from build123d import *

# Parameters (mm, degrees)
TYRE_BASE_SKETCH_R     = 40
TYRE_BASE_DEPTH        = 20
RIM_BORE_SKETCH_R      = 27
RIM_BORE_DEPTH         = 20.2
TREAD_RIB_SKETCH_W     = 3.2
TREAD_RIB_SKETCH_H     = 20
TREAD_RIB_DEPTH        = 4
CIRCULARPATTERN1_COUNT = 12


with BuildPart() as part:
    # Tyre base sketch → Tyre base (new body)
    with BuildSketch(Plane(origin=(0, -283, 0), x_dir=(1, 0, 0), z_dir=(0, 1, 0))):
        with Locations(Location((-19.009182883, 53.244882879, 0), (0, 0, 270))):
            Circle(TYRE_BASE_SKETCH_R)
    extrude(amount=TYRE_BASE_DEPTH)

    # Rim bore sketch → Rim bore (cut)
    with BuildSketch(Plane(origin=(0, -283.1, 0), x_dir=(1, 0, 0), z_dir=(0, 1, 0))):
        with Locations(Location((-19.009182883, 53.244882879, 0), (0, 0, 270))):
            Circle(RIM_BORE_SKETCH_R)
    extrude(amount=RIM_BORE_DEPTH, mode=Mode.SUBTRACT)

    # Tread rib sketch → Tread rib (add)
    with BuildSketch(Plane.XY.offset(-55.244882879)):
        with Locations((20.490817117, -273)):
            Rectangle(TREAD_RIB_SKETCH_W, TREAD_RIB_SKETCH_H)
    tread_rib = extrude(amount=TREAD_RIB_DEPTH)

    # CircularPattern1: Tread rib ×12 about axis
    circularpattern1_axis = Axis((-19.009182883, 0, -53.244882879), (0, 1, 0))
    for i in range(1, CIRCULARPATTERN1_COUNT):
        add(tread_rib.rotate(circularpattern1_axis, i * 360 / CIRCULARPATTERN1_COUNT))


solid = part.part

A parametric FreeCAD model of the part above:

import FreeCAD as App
import Part
import Sketcher
Q = App.Units.Quantity

doc = App.newDocument("Part")
body = doc.addObject("PartDesign::Body", "Body")

# Sketch on XZ plane
sketch1 = body.newObject("Sketcher::SketchObject", "Sketch")
sketch1.AttachmentSupport = (doc.getObject("XZ_Plane"), [""])
sketch1.MapMode = "FlatFace"
sketch1.AttachmentOffset = App.Placement(App.Vector(0, 0, 283), App.Rotation())
sketch1.addGeometry(Part.Circle(App.Vector(-19.009183, -53.244883, 0), App.Vector(0, 0, 1), 40), False)
sketch1.addConstraint(Sketcher.Constraint("Diameter", 0, Q("80 mm")))
sketch1.addConstraint(Sketcher.Constraint("DistanceX", 0, 3, -1, 1, Q("19.009183 mm")))
sketch1.addConstraint(Sketcher.Constraint("DistanceY", 0, 3, -1, 1, Q("53.244883 mm")))
pad1 = body.newObject("PartDesign::Pad", "Pad")
pad1.Profile = sketch1
pad1.Length = 20
pad1.Reversed = True

# Sketch on XZ plane
sketch2 = body.newObject("Sketcher::SketchObject", "Sketch001")
sketch2.AttachmentSupport = (doc.getObject("XZ_Plane"), [""])
sketch2.MapMode = "FlatFace"
sketch2.AttachmentOffset = App.Placement(App.Vector(0, 0, 283.1), App.Rotation())
sketch2.addGeometry(Part.Circle(App.Vector(-19.009183, -53.244883, 0), App.Vector(0, 0, 1), 27), False)
sketch2.addConstraint(Sketcher.Constraint("Diameter", 0, Q("54 mm")))
sketch2.addConstraint(Sketcher.Constraint("DistanceX", 0, 3, -1, 1, Q("19.009183 mm")))
sketch2.addConstraint(Sketcher.Constraint("DistanceY", 0, 3, -1, 1, Q("53.244883 mm")))
pocket1 = body.newObject("PartDesign::Pocket", "Pocket")
pocket1.Profile = sketch2
pocket1.Length = 20.2

# Sketch on XY plane
sketch3 = body.newObject("Sketcher::SketchObject", "Sketch002")
sketch3.AttachmentSupport = (doc.getObject("XY_Plane"), [""])
sketch3.MapMode = "FlatFace"
sketch3.AttachmentOffset = App.Placement(App.Vector(0, 0, -55.244883), App.Rotation())
sketch3.addGeometry(Part.LineSegment(App.Vector(18.890817, -263, 0), App.Vector(18.890817, -283, 0)), False)
sketch3.addGeometry(Part.LineSegment(App.Vector(18.890817, -283, 0), App.Vector(22.090817, -283, 0)), False)
sketch3.addGeometry(Part.LineSegment(App.Vector(22.090817, -283, 0), App.Vector(22.090817, -263, 0)), False)
sketch3.addGeometry(Part.LineSegment(App.Vector(22.090817, -263, 0), App.Vector(18.890817, -263, 0)), False)
sketch3.addConstraint(Sketcher.Constraint("Coincident", 0, 2, 1, 1))
sketch3.addConstraint(Sketcher.Constraint("Coincident", 1, 2, 2, 1))
sketch3.addConstraint(Sketcher.Constraint("Coincident", 2, 2, 3, 1))
sketch3.addConstraint(Sketcher.Constraint("Coincident", 3, 2, 0, 1))
sketch3.addConstraint(Sketcher.Constraint("Vertical", 0))
sketch3.addConstraint(Sketcher.Constraint("Horizontal", 1))
sketch3.addConstraint(Sketcher.Constraint("Vertical", 2))
sketch3.addConstraint(Sketcher.Constraint("Horizontal", 3))
sketch3.addConstraint(Sketcher.Constraint("DistanceY", 0, 2, 0, 1, Q("20 mm")))
sketch3.addConstraint(Sketcher.Constraint("DistanceX", 1, 1, 1, 2, Q("3.2 mm")))
sketch3.addConstraint(Sketcher.Constraint("DistanceY", 0, 2, -1, 1, Q("283 mm")))
sketch3.addConstraint(Sketcher.Constraint("DistanceX", -1, 1, 0, 2, Q("18.890817 mm")))
pad2 = body.newObject("PartDesign::Pad", "Pad001")
pad2.Profile = sketch3
pad2.Length = 4
doc.recompute()

datumline = body.newObject("PartDesign::Line", "DatumLine")
datumline.Placement = App.Placement(App.Vector(-19.009183, 0, -53.244883), App.Rotation(App.Vector(0, 0, 1), App.Vector(0, 1, 0)))
polarpattern = body.newObject("PartDesign::PolarPattern", "PolarPattern")
polarpattern.Originals = [pad2]
polarpattern.Axis = (datumline, [""])
polarpattern.Angle = 360
polarpattern.Occurrences = 12
body.Tip = polarpattern

doc.recompute()
